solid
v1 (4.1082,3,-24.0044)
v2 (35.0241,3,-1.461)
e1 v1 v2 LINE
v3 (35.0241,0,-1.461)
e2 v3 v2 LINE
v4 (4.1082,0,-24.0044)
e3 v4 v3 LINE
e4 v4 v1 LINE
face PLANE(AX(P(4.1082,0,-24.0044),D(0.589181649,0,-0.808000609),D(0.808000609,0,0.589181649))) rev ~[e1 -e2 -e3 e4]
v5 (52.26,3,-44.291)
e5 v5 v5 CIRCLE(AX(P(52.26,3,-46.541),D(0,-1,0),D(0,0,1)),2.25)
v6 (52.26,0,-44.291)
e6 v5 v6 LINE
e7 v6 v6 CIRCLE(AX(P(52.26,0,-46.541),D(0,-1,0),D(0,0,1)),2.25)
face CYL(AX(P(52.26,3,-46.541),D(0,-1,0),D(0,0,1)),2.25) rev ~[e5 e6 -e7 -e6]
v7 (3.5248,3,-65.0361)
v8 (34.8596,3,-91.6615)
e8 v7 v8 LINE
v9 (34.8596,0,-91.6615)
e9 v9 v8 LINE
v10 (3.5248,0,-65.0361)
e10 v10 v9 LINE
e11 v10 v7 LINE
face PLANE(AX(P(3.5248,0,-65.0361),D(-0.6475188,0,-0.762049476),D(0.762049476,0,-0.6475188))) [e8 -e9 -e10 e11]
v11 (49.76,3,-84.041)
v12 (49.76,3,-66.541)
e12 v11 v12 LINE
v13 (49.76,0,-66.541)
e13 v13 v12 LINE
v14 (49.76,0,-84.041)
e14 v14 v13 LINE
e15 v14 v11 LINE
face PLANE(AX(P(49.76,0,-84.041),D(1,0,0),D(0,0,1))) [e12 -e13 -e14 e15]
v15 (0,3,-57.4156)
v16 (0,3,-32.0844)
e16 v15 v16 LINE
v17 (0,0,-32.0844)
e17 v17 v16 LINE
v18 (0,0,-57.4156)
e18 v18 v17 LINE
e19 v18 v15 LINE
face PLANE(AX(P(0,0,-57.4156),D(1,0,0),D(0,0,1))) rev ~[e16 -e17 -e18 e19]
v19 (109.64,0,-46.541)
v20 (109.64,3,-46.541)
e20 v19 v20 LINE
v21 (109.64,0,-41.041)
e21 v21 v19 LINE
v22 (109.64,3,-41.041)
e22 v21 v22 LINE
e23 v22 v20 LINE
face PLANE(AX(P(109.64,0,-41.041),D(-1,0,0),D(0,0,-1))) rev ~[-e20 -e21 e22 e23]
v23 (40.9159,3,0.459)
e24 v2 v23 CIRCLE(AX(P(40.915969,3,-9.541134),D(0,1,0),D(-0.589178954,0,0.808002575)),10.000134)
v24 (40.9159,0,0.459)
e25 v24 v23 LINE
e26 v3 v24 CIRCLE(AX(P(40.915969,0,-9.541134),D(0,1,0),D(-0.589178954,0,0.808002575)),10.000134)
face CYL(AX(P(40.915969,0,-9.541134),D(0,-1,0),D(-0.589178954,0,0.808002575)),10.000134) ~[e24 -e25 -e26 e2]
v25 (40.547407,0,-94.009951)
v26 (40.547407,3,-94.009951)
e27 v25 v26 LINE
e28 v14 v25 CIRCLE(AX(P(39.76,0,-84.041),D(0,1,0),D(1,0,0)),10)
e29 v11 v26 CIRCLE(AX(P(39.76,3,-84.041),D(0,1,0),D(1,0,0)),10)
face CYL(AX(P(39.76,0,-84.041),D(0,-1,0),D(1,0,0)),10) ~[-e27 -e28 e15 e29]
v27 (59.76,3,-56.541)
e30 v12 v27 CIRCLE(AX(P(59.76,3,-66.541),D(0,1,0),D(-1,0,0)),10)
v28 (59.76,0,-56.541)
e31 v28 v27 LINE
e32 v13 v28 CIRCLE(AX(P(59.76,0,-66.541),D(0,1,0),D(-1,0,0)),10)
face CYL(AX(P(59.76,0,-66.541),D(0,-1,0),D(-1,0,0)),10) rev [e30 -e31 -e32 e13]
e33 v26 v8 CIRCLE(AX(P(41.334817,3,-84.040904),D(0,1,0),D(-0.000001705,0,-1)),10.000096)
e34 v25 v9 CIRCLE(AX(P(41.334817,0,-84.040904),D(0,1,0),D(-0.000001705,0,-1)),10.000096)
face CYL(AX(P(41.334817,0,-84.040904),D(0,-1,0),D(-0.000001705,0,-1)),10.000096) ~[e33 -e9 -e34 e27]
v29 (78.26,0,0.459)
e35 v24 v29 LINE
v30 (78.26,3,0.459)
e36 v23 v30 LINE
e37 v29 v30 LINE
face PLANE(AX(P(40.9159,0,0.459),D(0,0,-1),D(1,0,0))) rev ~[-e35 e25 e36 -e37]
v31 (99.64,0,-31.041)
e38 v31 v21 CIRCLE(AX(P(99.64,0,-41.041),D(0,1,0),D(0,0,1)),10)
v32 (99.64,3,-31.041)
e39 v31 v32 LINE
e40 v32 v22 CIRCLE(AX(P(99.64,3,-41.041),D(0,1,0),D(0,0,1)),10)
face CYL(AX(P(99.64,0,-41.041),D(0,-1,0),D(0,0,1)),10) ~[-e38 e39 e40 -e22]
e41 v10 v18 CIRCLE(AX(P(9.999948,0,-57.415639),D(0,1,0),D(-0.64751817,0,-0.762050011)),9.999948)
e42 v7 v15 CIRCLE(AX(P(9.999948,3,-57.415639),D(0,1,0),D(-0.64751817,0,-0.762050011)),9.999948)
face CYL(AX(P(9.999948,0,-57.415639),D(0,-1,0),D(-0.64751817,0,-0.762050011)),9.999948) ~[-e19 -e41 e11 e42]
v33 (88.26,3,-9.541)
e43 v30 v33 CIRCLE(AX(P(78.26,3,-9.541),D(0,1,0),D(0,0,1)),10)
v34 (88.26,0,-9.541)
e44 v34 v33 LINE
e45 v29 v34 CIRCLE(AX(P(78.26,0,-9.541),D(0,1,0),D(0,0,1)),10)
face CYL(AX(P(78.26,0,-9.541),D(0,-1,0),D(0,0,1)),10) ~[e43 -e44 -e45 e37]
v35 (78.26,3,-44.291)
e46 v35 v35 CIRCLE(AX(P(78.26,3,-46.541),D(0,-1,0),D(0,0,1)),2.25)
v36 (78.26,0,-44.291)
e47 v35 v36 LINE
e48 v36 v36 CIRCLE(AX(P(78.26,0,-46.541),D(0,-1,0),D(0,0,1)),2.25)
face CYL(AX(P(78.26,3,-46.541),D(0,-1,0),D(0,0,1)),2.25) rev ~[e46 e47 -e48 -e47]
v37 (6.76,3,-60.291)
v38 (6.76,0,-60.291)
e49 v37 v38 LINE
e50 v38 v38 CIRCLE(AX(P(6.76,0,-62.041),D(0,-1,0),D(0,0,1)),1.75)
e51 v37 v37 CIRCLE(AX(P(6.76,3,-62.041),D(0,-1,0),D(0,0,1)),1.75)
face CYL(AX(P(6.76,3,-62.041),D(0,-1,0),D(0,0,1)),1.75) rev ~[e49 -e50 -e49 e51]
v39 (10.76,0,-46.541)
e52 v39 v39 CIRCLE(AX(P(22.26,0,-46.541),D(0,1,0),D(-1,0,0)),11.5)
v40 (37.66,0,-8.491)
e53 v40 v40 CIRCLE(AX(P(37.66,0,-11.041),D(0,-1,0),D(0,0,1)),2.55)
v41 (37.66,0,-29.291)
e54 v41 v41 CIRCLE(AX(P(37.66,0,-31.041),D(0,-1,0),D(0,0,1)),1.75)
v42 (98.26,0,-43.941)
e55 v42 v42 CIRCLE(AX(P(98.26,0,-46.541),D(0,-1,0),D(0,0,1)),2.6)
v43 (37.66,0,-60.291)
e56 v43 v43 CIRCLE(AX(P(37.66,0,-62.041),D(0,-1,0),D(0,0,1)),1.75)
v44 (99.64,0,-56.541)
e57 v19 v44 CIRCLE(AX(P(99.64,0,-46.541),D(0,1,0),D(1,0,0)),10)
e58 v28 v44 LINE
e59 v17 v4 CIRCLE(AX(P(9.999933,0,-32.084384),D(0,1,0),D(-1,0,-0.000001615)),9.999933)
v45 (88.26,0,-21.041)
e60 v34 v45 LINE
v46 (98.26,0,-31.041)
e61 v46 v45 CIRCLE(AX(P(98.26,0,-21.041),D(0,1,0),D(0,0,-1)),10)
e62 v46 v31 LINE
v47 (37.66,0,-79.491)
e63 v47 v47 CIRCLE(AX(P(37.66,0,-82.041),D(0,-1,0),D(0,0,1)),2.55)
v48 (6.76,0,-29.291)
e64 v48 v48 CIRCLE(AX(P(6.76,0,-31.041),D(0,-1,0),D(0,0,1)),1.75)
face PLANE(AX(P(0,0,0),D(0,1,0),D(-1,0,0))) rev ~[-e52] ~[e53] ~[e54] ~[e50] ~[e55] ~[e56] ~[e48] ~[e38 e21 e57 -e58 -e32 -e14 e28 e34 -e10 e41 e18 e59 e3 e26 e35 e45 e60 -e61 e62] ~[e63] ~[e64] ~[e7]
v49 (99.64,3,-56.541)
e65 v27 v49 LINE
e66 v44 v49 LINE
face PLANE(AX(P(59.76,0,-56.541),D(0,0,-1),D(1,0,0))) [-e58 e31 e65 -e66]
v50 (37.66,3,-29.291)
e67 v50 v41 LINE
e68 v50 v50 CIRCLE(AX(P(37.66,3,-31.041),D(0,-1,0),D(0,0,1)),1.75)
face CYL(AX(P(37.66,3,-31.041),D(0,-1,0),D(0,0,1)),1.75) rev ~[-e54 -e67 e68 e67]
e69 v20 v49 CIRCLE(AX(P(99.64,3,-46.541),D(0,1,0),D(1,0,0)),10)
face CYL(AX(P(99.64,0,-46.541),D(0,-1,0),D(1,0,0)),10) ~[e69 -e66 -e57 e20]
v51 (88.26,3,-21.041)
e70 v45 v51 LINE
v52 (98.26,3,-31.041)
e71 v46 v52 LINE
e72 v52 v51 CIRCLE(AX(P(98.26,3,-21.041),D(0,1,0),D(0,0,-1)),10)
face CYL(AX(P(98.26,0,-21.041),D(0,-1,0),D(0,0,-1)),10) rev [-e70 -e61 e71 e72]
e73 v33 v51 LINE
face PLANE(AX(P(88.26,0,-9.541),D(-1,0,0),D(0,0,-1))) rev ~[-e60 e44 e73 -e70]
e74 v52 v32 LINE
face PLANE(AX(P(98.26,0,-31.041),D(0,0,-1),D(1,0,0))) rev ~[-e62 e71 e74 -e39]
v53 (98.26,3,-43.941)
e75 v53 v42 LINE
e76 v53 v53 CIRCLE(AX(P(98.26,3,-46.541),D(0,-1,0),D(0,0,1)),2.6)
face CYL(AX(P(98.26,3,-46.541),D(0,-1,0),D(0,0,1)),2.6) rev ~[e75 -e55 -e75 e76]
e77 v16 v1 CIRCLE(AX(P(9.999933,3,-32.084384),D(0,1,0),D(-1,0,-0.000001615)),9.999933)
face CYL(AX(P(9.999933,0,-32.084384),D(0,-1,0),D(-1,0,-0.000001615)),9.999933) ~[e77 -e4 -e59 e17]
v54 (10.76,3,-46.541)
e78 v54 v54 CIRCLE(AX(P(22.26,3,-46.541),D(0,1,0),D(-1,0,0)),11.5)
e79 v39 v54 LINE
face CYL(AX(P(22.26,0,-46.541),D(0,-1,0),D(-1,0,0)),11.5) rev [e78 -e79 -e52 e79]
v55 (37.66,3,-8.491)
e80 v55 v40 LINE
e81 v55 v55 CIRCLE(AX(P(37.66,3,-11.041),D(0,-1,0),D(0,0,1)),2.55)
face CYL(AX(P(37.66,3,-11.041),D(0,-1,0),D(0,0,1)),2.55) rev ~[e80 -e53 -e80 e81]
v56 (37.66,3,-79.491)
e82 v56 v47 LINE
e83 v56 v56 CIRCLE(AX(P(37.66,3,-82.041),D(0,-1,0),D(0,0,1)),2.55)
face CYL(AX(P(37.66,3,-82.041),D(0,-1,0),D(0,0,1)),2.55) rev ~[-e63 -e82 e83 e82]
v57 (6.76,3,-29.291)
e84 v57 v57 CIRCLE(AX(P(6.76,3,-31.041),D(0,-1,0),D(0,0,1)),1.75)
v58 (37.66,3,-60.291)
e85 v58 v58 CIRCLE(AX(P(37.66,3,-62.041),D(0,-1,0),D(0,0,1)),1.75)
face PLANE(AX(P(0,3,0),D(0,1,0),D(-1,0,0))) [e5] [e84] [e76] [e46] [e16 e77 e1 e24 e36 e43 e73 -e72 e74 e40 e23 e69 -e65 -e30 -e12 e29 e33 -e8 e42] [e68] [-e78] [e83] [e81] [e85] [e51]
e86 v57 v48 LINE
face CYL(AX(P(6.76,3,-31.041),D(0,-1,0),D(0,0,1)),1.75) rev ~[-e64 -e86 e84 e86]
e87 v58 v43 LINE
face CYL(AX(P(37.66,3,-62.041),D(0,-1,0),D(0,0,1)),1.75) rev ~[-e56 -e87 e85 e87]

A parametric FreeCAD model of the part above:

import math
import FreeCAD as App
import Part
import Sketcher
from FreeCAD import Vector
Q = App.Units.Quantity

doc = App.newDocument("Part")
body = doc.addObject("PartDesign::Body", "Body")

# Sketch on XZ plane
sketch1 = body.newObject("Sketcher::SketchObject", "Sketch")
sketch1.AttachmentSupport = (doc.getObject("XZ_Plane"), [""])
sketch1.MapMode = "FlatFace"
sketch1.addGeometry(Part.ArcOfCircle(Part.Circle(Vector(40.9, -9.5, 0), Vector(0, 0, 1), 10), math.radians(90), math.radians(126)), False)
sketch1.addGeometry(Part.LineSegment(Vector(40.9, 0.5, 0), Vector(78.3, 0.5, 0)), False)
sketch1.addGeometry(Part.ArcOfCircle(Part.Circle(Vector(78.3, -9.5, 0), Vector(0, 0, 1), 10), math.radians(0), math.radians(90)), False)
sketch1.addGeometry(Part.LineSegment(Vector(88.3, -9.5, 0), Vector(88.3, -21, 0)), False)
sketch1.addGeometry(Part.ArcOfCircle(Part.Circle(Vector(98.3, -21, 0), Vector(0, 0, 1), 10), math.radians(180), math.radians(270)), False)
sketch1.addGeometry(Part.LineSegment(Vector(98.3, -31, 0), Vector(99.6, -31, 0)), False)
sketch1.addGeometry(Part.ArcOfCircle(Part.Circle(Vector(99.6, -41, 0), Vector(0, 0, 1), 10), math.radians(0), math.radians(90)), False)
sketch1.addGeometry(Part.LineSegment(Vector(109.6, -41, 0), Vector(109.6, -46.5, 0)), False)
sketch1.addGeometry(Part.ArcOfCircle(Part.Circle(Vector(99.6, -46.5, 0), Vector(0, 0, 1), 10), math.radians(-90), math.radians(0)), False)
sketch1.addGeometry(Part.LineSegment(Vector(99.6, -56.5, 0), Vector(59.8, -56.5, 0)), False)
sketch1.addGeometry(Part.ArcOfCircle(Part.Circle(Vector(59.8, -66.5, 0), Vector(0, 0, 1), 10), math.radians(90), math.radians(180)), False)
sketch1.addGeometry(Part.LineSegment(Vector(49.8, -66.5, 0), Vector(49.8, -84, 0)), False)
sketch1.addGeometry(Part.ArcOfCircle(Part.Circle(Vector(39.8, -84, 0), Vector(0, 0, 1), 10), math.radians(-85), math.radians(0)), False)
sketch1.addGeometry(Part.ArcOfCircle(Part.Circle(Vector(41.3, -84, 0), Vector(0, 0, 1), 10), math.radians(-130), math.radians(-95)), False)
sketch1.addGeometry(Part.LineSegment(Vector(34.9, -91.7, 0), Vector(3.5, -65, 0)), False)
sketch1.addGeometry(Part.ArcOfCircle(Part.Circle(Vector(10, -57.4, 0), Vector(0, 0, 1), 10), math.radians(180), math.radians(230)), False)
sketch1.addGeometry(Part.LineSegment(Vector(0, -57.4, 0), Vector(0, -32.1, 0)), False)
sketch1.addGeometry(Part.ArcOfCircle(Part.Circle(Vector(10, -32.1, 0), Vector(0, 0, 1), 10), math.radians(126), math.radians(180)), False)
sketch1.addGeometry(Part.LineSegment(Vector(4.1, -24, 0), Vector(35, -1.5, 0)), False)
sketch1.addGeometry(Part.Circle(Vector(22.3, -46.5, 0), Vector(0, 0, 1), 11.5), False)
sketch1.addConstraint(Sketcher.Constraint("Tangent", 0, 1, 1, 1))
sketch1.addConstraint(Sketcher.Constraint("Tangent", 1, 2, 2, 2))
sketch1.addConstraint(Sketcher.Constraint("Tangent", 2, 1, 3, 1))
sketch1.addConstraint(Sketcher.Constraint("Tangent", 3, 2, 4, 1))
sketch1.addConstraint(Sketcher.Constraint("Tangent", 4, 2, 5, 1))
sketch1.addConstraint(Sketcher.Constraint("Tangent", 5, 2, 6, 2))
sketch1.addConstraint(Sketcher.Constraint("Tangent", 6, 1, 7, 1))
sketch1.addConstraint(Sketcher.Constraint("Tangent", 7, 2, 8, 2))
sketch1.addConstraint(Sketcher.Constraint("Tangent", 8, 1, 9, 1))
sketch1.addConstraint(Sketcher.Constraint("Tangent", 9, 2, 10, 1))
sketch1.addConstraint(Sketcher.Constraint("Tangent", 10, 2, 11, 1))
sketch1.addConstraint(Sketcher.Constraint("Tangent", 11, 2, 12, 2))
sketch1.addConstraint(Sketcher.Constraint("Coincident", 12, 1, 13, 2))
sketch1.addConstraint(Sketcher.Constraint("Tangent", 13, 1, 14, 1))
sketch1.addConstraint(Sketcher.Constraint("Tangent", 14, 2, 15, 2))
sketch1.addConstraint(Sketcher.Constraint("Tangent", 15, 1, 16, 1))
sketch1.addConstraint(Sketcher.Constraint("Tangent", 16, 2, 17, 2))
sketch1.addConstraint(Sketcher.Constraint("Tangent", 17, 1, 18, 1))
sketch1.addConstraint(Sketcher.Constraint("Tangent", 18, 2, 0, 2))
sketch1.addConstraint(Sketcher.Constraint("Horizontal", 1))
sketch1.addConstraint(Sketcher.Constraint("Vertical", 3))
sketch1.addConstraint(Sketcher.Constraint("Horizontal", 5))
sketch1.addConstraint(Sketcher.Constraint("Vertical", 7))
sketch1.addConstraint(Sketcher.Constraint("Horizontal", 9))
sketch1.addConstraint(Sketcher.Constraint("Vertical", 11))
sketch1.addConstraint(Sketcher.Constraint("Vertical", 16))
sketch1.addConstraint(Sketcher.Constraint("Equal", 0, 2))
sketch1.addConstraint(Sketcher.Constraint("Equal", 2, 4))
sketch1.addConstraint(Sketcher.Constraint("Equal", 4, 6))
sketch1.addConstraint(Sketcher.Constraint("Equal", 6, 8))
sketch1.addConstraint(Sketcher.Constraint("Equal", 8, 10))
sketch1.addConstraint(Sketcher.Constraint("Equal", 10, 12))
sketch1.addConstraint(Sketcher.Constraint("Equal", 12, 13))
sketch1.addConstraint(Sketcher.Constraint("Equal", 13, 15))
sketch1.addConstraint(Sketcher.Constraint("Equal", 15, 17))
sketch1.addConstraint(Sketcher.Constraint("PointOnObject", 15, 1, -2))
sketch1.addConstraint(Sketcher.Constraint("Horizontal", 12, 3, 13, 3))
sketch1.addConstraint(Sketcher.Constraint("Horizontal", 8, 3, 19, 3))
sketch1.addConstraint(Sketcher.Constraint("Diameter", 19, Q("23 mm")))
sketch1.addConstraint(Sketcher.Constraint("Radius", 0, Q("10 mm")))
sketch1.addConstraint(Sketcher.Constraint("DistanceY", 10, 3, 2, 3, Q("57 mm")))
sketch1.addConstraint(Sketcher.Constraint("DistanceY", 8, 3, 4, 3, Q("25.5 mm")))
sketch1.addConstraint(Sketcher.Constraint("DistanceX", -1, 1, 19, 3, Q("22.26 mm")))
sketch1.addConstraint(Sketcher.Constraint("DistanceX", -1, 1, 2, 1, Q("88.26 mm")))
sketch1.addConstraint(Sketcher.Constraint("DistanceX", -1, 1, 6, 1, Q("109.64 mm")))
sketch1.addConstraint(Sketcher.Constraint("DistanceX", -1, 1, 10, 2, Q("49.76 mm")))
sketch1.addConstraint(Sketcher.Constraint("DistanceY", 11, 2, 11, 1, Q("17.5 mm")))
sketch1.addConstraint(Sketcher.Constraint("Angle", 18, Q("36.099 deg")))
sketch1.addConstraint(Sketcher.Constraint("DistanceX", 1, 1, 1, 2, Q("37.344 mm")))
sketch1.addConstraint(Sketcher.Constraint("DistanceY", 12, 1, -1, 1, Q("94.01 mm")))
sketch1.addConstraint(Sketcher.Constraint("Distance", 14, Q("41.119 mm")))
sketch1.addConstraint(Sketcher.Constraint("DistanceY", 16, 1, 16, 2, Q("25.3312 mm")))
pad1 = body.newObject("PartDesign::Pad", "Pad")
pad1.Profile = sketch1
pad1.Length = 3
pad1.Reversed = True

# Sketch on XZ plane
sketch2 = body.newObject("Sketcher::SketchObject", "Sketch001")
sketch2.AttachmentSupport = (doc.getObject("XZ_Plane"), [""])
sketch2.MapMode = "FlatFace"
sketch2.AttachmentOffset = App.Placement(Vector(0, 0, -3), App.Rotation())
sketch2.addGeometry(Part.Circle(Vector(6.8, -62, 0), Vector(0, 0, 1), 1.8), False)
sketch2.addGeometry(Part.Circle(Vector(37.7, -62, 0), Vector(0, 0, 1), 1.8), False)
sketch2.addGeometry(Part.Circle(Vector(37.7, -31, 0), Vector(0, 0, 1), 1.8), False)
sketch2.addGeometry(Part.Circle(Vector(6.8, -31, 0), Vector(0, 0, 1), 1.8), False)
sketch2.addConstraint(Sketcher.Constraint("Equal", 0, 1))
sketch2.addConstraint(Sketcher.Constraint("Equal", 1, 2))
sketch2.addConstraint(Sketcher.Constraint("Equal", 2, 3))
sketch2.addConstraint(Sketcher.Constraint("Horizontal", 0, 3, 1, 3))
sketch2.addConstraint(Sketcher.Constraint("Horizontal", 2, 3, 3, 3))
sketch2.addConstraint(Sketcher.Constraint("Vertical", 1, 3, 2, 3))
sketch2.addConstraint(Sketcher.Constraint("Vertical", 0, 3, 3, 3))
sketch2.addConstraint(Sketcher.Constraint("Diameter", 0, Q("3.5 mm")))
sketch2.addConstraint(Sketcher.Constraint("DistanceY", 1, 3, 2, 3, Q("31 mm")))
sketch2.addConstraint(Sketcher.Constraint("DistanceX", 0, 3, 1, 3, Q("30.9 mm")))
sketch2.addConstraint(Sketcher.Constraint("DistanceX", -1, 1, 0, 3, Q("6.76 mm")))
sketch2.addConstraint(Sketcher.Constraint("DistanceY", 0, 3, -1, 1, Q("62.041 mm")))
doc.recompute()
hole = body.newObject("PartDesign::Hole", "Hole")
hole.Profile = sketch2
hole.ThreadType = "None"
hole.Diameter = 3.5
hole.DepthType = "ThroughAll"
hole.Reversed = True

# Sketch on XZ plane
sketch3 = body.newObject("Sketcher::SketchObject", "Sketch002")
sketch3.AttachmentSupport = (doc.getObject("XZ_Plane"), [""])
sketch3.MapMode = "FlatFace"
sketch3.AttachmentOffset = App.Placement(Vector(0, 0, -3), App.Rotation())
sketch3.addGeometry(Part.Circle(Vector(37.7, -82, 0), Vector(0, 0, 1), 2.5), False)
sketch3.addGeometry(Part.Circle(Vector(37.7, -11, 0), Vector(0, 0, 1), 2.5), False)
sketch3.addConstraint(Sketcher.Constraint("Equal", 0, 1))
sketch3.addConstraint(Sketcher.Constraint("Vertical", 0, 3, 1, 3))
sketch3.addConstraint(Sketcher.Constraint("Diameter", 0, Q("5.1 mm")))
sketch3.addConstraint(Sketcher.Constraint("DistanceY", 0, 3, 1, 3, Q("71 mm")))
sketch3.addConstraint(Sketcher.Constraint("DistanceX", -1, 1, 0, 3, Q("37.66 mm")))
sketch3.addConstraint(Sketcher.Constraint("DistanceY", 0, 3, -1, 1, Q("82.041 mm")))
doc.recompute()
hole2 = body.newObject("PartDesign::Hole", "Hole001")
hole2.Profile = sketch3
hole2.ThreadType = "None"
hole2.Diameter = 5.1
hole2.DepthType = "ThroughAll"
hole2.Reversed = True

# Sketch on XZ plane
sketch4 = body.newObject("Sketcher::SketchObject", "Sketch003")
sketch4.AttachmentSupport = (doc.getObject("XZ_Plane"), [""])
sketch4.MapMode = "FlatFace"
sketch4.AttachmentOffset = App.Placement(Vector(0, 0, -3), App.Rotation())
sketch4.addGeometry(Part.Circle(Vector(52.3, -46.5, 0), Vector(0, 0, 1), 2.2), False)
sketch4.addGeometry(Part.Circle(Vector(78.3, -46.5, 0), Vector(0, 0, 1), 2.2), False)
sketch4.addConstraint(Sketcher.Constraint("Equal", 0, 1))
sketch4.addConstraint(Sketcher.Constraint("Horizontal", 0, 3, 1, 3))
sketch4.addConstraint(Sketcher.Constraint("Diameter", 0, Q("4.5 mm")))
sketch4.addConstraint(Sketcher.Constraint("DistanceX", 0, 3, 1, 3, Q("26 mm")))
sketch4.addConstraint(Sketcher.Constraint("DistanceX", -1, 1, 0, 3, Q("52.26 mm")))
sketch4.addConstraint(Sketcher.Constraint("DistanceY", 0, 3, -1, 1, Q("46.541 mm")))
doc.recompute()
hole3 = body.newObject("PartDesign::Hole", "Hole002")
hole3.Profile = sketch4
hole3.ThreadType = "None"
hole3.Diameter = 4.5
hole3.DepthType = "ThroughAll"
hole3.Reversed = True

# Sketch on XZ plane
sketch5 = body.newObject("Sketcher::SketchObject", "Sketch004")
sketch5.AttachmentSupport = (doc.getObject("XZ_Plane"), [""])
sketch5.MapMode = "FlatFace"
sketch5.AttachmentOffset = App.Placement(Vector(0, 0, -3), App.Rotation())
sketch5.addGeometry(Part.Circle(Vector(98.3, -46.5, 0), Vector(0, 0, 1), 2.6), False)
sketch5.addConstraint(Sketcher.Constraint("Diameter", 0, Q("5.2 mm")))
sketch5.addConstraint(Sketcher.Constraint("DistanceX", -1, 1, 0, 3, Q("98.26 mm")))
sketch5.addConstraint(Sketcher.Constraint("DistanceY", 0, 3, -1, 1, Q("46.541 mm")))
doc.recompute()
hole4 = body.newObject("PartDesign::Hole", "Hole003")
hole4.Profile = sketch5
hole4.ThreadType = "None"
hole4.Diameter = 5.2
hole4.DepthType = "ThroughAll"
hole4.Reversed = True

doc.recompute()
